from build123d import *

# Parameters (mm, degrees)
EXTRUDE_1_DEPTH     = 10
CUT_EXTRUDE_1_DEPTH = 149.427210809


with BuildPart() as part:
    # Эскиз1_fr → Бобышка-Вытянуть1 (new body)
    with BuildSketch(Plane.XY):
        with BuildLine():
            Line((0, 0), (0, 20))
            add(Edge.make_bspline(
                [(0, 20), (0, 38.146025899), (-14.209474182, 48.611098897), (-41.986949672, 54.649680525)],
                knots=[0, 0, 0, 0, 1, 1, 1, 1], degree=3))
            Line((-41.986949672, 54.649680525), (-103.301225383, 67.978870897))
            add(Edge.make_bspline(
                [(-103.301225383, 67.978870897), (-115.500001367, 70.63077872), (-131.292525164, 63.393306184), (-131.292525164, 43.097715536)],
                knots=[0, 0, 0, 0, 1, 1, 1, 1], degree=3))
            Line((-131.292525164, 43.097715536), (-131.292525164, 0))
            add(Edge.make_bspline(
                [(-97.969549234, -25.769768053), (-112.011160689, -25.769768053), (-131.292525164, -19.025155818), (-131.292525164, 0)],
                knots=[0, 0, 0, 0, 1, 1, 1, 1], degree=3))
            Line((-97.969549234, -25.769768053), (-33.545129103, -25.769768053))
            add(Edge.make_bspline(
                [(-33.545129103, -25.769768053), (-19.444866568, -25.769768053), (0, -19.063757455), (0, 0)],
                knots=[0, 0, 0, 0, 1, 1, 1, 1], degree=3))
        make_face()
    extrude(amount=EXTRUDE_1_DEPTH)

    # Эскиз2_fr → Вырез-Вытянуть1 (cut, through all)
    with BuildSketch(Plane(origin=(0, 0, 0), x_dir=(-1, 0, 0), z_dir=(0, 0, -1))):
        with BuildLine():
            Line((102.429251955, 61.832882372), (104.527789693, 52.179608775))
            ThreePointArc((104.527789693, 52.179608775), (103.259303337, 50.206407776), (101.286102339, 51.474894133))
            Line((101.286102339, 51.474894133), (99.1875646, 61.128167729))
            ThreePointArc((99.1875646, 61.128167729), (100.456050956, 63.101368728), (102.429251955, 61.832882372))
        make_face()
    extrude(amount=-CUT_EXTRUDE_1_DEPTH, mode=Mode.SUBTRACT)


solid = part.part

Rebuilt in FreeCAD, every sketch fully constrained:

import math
import FreeCAD as App
import Part
import Sketcher
from FreeCAD import Vector
Q = App.Units.Quantity

doc = App.newDocument("Part")
body = doc.addObject("PartDesign::Body", "Body")

# Sketch on XY plane
sketch1 = body.newObject("Sketcher::SketchObject", "Sketch")
sketch1.AttachmentSupport = (doc.getObject("XY_Plane"), [""])
sketch1.MapMode = "FlatFace"
sketch1.addGeometry([
    Part.LineSegment(Vector(0, 0, 0), Vector(0, 20, 0)),  # 0
    Part.BSplineCurve([Vector(0, 20, 0), Vector(0, 38.146026, 0), Vector(-14.209474, 48.611099, 0), Vector(-41.98695, 54.649681, 0)], [4, 4], [0, 1], False, 3, [1, 1, 1, 1], False),  # 1
    Part.LineSegment(Vector(-41.98695, 54.649681, 0), Vector(-103.301225, 67.978871, 0)),  # 2
    Part.BSplineCurve([Vector(-103.301225, 67.978871, 0), Vector(-115.500001, 70.630779, 0), Vector(-131.292525, 63.393306, 0), Vector(-131.292525, 43.097716, 0)], [4, 4], [0, 1], False, 3, [1, 1, 1, 1], False),  # 3
    Part.LineSegment(Vector(-131.292525, 43.097716, 0), Vector(-131.292525, 0, 0)),  # 4
    Part.BSplineCurve([Vector(-97.969549, -25.769768, 0), Vector(-112.011161, -25.769768, 0), Vector(-131.292525, -19.025156, 0), Vector(-131.292525, 0, 0)], [4, 4], [0, 1], False, 3, [1, 1, 1, 1], False),  # 5
    Part.LineSegment(Vector(-97.969549, -25.769768, 0), Vector(-33.545129, -25.769768, 0)),  # 6
    Part.BSplineCurve([Vector(-33.545129, -25.769768, 0), Vector(-19.444867, -25.769768, 0), Vector(0, -19.063757, 0), Vector(0, 0, 0)], [4, 4], [0, 1], False, 3, [1, 1, 1, 1], False),  # 7
], False)
sketch1.addConstraint([
    Sketcher.Constraint("Block", 1),
    Sketcher.Constraint("Block", 3),
    Sketcher.Constraint("Block", 5),
    Sketcher.Constraint("Block", 7),
    Sketcher.Constraint("Coincident", 0, 2, 1, 1),
    Sketcher.Constraint("Coincident", 1, 2, 2, 1),
    Sketcher.Constraint("Coincident", 2, 2, 3, 1),
    Sketcher.Constraint("Coincident", 3, 2, 4, 1),
    Sketcher.Constraint("Coincident", 4, 2, 5, 2),
    Sketcher.Constraint("Coincident", 5, 1, 6, 1),
    Sketcher.Constraint("Coincident", 6, 2, 7, 1),
    Sketcher.Constraint("Coincident", 7, 2, 0, 1),
])
pad1 = body.newObject("PartDesign::Pad", "Pad")
pad1.Profile = sketch1
pad1.Length = 10

# Sketch on XY plane
sketch2 = body.newObject("Sketcher::SketchObject", "Sketch001")
sketch2.AttachmentSupport = (doc.getObject("XY_Plane"), [""])
sketch2.MapMode = "FlatFace"
sketch2.addGeometry([
    Part.LineSegment(Vector(-104.52779, 52.179609, 0), Vector(-102.429252, 61.832882, 0)),
    Part.ArcOfCircle(Part.Circle(Vector(-100.808408, 61.480525, 0), Vector(0, 0, 1), 1.658701), math.radians(-12.264774), math.radians(167.735226)),
    Part.LineSegment(Vector(-99.187565, 61.128168, 0), Vector(-101.286102, 51.474894, 0)),
    Part.ArcOfCircle(Part.Circle(Vector(-102.906946, 51.827251, 0), Vector(0, 0, 1), 1.658701), math.radians(167.735226), math.radians(347.735226)),
], False)
sketch2.addConstraint([
    Sketcher.Constraint("Coincident", 0, 2, 1, 2),
    Sketcher.Constraint("Coincident", 1, 1, 2, 1),
    Sketcher.Constraint("Coincident", 2, 2, 3, 2),
    Sketcher.Constraint("Coincident", 3, 1, 0, 1),
    Sketcher.Constraint("Radius", 1, Q("1.658701 mm")),
    Sketcher.Constraint("Radius", 3, Q("1.658701 mm")),
    Sketcher.Constraint("DistanceX", 1, 3, -1, 1, Q("100.808408 mm")),
    Sketcher.Constraint("DistanceY", -1, 1, 3, 3, Q("51.827251 mm")),
    Sketcher.Constraint("DistanceX", 0, 2, -1, 1, Q("102.429252 mm")),
    Sketcher.Constraint("DistanceX", 3, 1, -1, 1, Q("104.52779 mm")),
    Sketcher.Constraint("DistanceY", -1, 1, 3, 1, Q("52.179609 mm")),
    Sketcher.Constraint("DistanceY", 3, 3, 0, 2, Q("10.005631 mm")),
    Sketcher.Constraint("DistanceX", 3, 3, 1, 1, Q("3.719381 mm")),
    Sketcher.Constraint("DistanceY", 2, 2, 1, 3, Q("10.005631 mm")),
])
pocket1 = body.newObject("PartDesign::Pocket", "Pocket")
pocket1.Profile = sketch2
pocket1.Type = "ThroughAll"
pocket1.Reversed = True

doc.recompute()
